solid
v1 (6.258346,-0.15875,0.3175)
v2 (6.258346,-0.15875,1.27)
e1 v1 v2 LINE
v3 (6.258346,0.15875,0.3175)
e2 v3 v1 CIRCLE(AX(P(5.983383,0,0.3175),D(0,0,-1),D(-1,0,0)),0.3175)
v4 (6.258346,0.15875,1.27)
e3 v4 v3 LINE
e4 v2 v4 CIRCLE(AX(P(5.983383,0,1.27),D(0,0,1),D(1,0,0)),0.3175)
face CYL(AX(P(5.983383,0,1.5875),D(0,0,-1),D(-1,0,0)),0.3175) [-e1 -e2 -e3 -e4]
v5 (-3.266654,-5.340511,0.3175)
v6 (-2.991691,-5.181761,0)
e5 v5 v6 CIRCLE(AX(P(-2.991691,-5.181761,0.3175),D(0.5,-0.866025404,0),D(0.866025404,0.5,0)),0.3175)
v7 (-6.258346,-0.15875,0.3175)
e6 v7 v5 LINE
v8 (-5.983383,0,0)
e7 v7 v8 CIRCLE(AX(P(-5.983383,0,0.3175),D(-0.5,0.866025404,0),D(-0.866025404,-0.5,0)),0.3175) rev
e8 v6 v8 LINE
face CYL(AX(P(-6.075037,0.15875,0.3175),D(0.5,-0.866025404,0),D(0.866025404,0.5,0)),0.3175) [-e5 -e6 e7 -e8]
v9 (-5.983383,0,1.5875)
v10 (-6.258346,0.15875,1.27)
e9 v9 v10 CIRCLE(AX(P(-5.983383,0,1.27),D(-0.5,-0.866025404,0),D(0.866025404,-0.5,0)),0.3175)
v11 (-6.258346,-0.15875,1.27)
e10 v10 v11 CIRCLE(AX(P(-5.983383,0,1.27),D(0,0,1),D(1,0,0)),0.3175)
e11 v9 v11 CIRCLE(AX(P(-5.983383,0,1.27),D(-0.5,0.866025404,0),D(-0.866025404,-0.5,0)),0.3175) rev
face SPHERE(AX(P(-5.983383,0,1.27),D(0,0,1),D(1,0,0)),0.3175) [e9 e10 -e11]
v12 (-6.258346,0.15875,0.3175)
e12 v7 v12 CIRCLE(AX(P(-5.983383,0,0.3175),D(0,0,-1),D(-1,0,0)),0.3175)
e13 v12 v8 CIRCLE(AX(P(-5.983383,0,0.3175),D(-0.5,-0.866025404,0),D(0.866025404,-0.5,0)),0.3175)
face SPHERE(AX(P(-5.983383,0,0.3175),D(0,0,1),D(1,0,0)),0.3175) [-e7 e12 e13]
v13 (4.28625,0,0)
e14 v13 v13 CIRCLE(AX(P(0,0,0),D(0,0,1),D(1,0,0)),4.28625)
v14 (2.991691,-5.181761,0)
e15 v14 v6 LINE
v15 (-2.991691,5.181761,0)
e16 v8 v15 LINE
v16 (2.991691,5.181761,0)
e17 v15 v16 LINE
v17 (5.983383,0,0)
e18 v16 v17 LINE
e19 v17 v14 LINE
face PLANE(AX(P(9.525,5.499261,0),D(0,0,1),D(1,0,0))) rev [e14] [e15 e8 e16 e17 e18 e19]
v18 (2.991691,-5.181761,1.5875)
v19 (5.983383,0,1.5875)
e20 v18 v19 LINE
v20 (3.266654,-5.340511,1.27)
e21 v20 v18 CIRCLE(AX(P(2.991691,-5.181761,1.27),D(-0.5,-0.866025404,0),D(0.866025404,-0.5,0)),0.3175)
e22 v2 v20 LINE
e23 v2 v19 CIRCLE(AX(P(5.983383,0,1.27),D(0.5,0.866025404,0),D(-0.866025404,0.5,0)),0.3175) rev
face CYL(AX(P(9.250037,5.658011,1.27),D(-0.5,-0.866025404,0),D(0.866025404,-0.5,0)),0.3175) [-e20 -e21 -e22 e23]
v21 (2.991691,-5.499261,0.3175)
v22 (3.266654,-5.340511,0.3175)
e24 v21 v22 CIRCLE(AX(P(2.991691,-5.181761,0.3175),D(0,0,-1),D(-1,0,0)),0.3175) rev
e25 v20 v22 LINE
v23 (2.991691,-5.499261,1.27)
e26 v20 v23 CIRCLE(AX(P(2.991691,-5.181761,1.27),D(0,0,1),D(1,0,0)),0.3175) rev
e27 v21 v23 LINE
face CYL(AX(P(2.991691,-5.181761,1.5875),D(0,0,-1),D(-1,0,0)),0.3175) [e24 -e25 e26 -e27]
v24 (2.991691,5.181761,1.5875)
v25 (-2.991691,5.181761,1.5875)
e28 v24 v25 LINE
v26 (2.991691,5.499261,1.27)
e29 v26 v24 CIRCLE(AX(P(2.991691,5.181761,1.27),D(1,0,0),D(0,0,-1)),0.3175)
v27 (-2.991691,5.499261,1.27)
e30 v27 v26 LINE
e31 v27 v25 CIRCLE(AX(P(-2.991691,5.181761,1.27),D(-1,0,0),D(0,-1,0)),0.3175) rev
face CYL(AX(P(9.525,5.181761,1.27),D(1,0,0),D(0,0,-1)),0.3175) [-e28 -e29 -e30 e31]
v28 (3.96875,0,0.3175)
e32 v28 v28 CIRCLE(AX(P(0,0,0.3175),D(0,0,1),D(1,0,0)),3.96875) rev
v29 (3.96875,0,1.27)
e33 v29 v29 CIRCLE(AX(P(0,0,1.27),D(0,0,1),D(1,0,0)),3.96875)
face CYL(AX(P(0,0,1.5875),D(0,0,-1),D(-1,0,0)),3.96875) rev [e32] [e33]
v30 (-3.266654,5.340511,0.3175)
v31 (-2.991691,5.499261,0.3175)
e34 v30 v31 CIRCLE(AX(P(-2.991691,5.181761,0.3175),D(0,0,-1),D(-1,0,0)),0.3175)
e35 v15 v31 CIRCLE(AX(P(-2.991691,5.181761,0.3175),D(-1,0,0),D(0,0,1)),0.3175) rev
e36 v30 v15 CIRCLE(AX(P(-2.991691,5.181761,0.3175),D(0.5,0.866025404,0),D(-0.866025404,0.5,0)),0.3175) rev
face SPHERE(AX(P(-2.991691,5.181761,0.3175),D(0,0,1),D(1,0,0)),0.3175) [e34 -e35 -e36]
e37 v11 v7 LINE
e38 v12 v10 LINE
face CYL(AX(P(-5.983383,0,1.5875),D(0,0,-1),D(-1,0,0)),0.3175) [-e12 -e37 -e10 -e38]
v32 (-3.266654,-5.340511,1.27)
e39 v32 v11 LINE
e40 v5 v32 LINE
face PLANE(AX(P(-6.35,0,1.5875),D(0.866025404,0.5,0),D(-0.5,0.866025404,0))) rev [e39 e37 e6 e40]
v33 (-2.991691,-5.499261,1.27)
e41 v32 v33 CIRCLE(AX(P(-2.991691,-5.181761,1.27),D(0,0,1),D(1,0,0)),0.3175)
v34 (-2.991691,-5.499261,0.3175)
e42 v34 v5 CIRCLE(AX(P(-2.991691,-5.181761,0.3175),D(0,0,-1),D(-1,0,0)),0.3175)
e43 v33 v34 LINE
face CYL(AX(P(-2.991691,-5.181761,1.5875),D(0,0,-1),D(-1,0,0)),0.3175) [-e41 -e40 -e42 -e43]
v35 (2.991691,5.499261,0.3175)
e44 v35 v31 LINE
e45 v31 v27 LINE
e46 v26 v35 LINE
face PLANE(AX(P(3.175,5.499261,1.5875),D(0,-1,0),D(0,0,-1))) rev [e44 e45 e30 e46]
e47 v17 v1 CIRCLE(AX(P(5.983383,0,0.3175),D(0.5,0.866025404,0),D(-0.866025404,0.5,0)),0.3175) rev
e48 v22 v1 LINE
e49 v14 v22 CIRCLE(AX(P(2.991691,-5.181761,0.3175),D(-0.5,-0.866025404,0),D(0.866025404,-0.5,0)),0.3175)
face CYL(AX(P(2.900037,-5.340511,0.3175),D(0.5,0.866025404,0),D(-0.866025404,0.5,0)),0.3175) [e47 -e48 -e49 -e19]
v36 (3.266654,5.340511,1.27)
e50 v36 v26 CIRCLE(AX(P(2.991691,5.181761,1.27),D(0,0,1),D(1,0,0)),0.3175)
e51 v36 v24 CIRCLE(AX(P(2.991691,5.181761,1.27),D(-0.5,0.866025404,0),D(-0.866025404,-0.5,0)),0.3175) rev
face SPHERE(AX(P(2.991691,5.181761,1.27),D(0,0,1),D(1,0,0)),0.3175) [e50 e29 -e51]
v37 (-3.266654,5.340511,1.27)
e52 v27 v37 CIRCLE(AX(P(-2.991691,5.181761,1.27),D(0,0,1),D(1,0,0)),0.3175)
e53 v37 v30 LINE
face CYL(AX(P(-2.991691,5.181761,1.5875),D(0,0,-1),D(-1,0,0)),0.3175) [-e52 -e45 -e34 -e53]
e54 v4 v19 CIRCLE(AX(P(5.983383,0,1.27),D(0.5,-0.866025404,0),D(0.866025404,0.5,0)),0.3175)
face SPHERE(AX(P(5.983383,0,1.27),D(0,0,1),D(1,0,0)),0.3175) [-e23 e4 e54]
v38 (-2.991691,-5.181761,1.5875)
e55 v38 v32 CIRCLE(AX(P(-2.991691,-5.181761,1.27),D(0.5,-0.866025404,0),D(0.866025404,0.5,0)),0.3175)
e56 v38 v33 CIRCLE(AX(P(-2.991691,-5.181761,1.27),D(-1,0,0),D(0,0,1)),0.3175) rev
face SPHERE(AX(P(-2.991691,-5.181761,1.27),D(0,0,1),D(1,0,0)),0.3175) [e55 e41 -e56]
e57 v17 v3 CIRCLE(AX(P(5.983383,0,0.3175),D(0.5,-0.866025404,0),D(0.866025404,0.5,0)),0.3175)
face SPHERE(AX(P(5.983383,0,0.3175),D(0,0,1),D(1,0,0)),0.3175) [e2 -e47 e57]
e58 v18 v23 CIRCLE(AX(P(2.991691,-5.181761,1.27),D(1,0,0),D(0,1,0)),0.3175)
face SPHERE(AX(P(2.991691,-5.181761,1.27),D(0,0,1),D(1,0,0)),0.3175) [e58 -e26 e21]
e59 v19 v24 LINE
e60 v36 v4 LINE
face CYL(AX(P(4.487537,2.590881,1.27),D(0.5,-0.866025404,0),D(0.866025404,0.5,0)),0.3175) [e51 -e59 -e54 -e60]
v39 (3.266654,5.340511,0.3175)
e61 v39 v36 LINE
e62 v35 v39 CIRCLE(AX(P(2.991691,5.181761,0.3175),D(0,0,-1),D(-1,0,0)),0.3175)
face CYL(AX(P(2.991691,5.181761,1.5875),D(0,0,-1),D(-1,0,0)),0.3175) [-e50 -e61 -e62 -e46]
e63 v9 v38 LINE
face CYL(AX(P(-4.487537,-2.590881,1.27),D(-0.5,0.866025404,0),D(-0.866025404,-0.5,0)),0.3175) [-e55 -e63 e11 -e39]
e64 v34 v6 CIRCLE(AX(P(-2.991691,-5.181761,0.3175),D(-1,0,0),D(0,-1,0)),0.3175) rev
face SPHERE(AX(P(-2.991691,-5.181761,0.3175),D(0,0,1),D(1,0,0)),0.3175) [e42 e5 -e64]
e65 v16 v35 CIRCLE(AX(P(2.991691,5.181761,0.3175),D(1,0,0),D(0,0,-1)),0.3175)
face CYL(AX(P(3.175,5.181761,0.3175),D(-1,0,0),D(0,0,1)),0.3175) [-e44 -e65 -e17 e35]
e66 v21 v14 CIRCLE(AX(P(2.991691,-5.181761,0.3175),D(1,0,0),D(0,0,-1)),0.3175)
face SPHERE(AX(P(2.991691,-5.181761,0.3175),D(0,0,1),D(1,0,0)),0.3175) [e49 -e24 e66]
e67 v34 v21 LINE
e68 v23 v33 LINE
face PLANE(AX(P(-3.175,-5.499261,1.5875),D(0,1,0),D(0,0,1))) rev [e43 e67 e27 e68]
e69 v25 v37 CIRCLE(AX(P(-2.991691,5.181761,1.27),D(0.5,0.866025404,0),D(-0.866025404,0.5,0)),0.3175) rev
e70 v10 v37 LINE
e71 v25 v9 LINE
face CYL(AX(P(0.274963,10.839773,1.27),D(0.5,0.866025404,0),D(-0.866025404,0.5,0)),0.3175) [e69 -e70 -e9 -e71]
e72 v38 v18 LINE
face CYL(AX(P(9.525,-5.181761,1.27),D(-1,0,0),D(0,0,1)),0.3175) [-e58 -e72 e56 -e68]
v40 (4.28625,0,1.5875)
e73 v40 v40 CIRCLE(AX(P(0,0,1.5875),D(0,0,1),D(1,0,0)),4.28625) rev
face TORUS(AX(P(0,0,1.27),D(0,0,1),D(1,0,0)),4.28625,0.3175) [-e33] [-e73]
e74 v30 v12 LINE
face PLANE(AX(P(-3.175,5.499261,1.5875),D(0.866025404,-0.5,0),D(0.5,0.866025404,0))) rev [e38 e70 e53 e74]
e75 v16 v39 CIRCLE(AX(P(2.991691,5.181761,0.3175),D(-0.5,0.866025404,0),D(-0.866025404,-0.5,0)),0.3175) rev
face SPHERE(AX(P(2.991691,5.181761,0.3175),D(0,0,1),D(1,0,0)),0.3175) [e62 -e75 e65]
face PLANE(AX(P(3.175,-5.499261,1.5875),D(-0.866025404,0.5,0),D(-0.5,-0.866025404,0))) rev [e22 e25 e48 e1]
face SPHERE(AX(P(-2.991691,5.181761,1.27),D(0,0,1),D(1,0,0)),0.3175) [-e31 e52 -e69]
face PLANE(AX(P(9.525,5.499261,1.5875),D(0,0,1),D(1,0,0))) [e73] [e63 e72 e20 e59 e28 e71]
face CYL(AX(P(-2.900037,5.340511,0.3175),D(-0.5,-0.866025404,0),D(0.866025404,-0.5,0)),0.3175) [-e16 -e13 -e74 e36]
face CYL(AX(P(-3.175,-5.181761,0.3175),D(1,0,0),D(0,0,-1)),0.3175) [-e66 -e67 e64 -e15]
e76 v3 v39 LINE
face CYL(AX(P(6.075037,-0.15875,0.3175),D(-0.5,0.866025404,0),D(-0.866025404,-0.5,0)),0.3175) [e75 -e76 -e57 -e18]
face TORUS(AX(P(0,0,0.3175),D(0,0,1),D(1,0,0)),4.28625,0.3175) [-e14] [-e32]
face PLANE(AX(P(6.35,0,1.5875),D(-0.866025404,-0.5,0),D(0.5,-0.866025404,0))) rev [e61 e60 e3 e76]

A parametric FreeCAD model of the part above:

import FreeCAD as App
import Part
import Sketcher
from FreeCAD import Vector
Q = App.Units.Quantity


def add_polygon(sketch, points):
    """Adds a closed chain of lines whose ends are joined by coincident constraints."""
    first, n = sketch.GeometryCount, len(points)
    for a, b in zip(points, points[1:] + points[:1]):
        sketch.addGeometry(Part.LineSegment(App.Vector(*a, 0), App.Vector(*b, 0)), False)
    for i in range(n):
        sketch.addConstraint(Sketcher.Constraint("Coincident", first + i, 2, first + (i + 1) % n, 1))

doc = App.newDocument("Part")
body = doc.addObject("PartDesign::Body", "Body")

# Sketch on XY plane
sketch1 = doc.addObject("Sketcher::SketchObject", "Sketch")
body.addObject(sketch1)
sketch1.AttachmentSupport = (doc.XY_Plane, [""])
sketch1.MapMode = "FlatFace"
add_polygon(sketch1, [(6.3, 0), (3.2, 5.5), (-3.2, 5.5), (-6.3, 0), (-3.2, -5.5), (3.2, -5.5)])  # lines 0-5
sketch1.addGeometry(Part.Circle(Vector(0, 0, 0), Vector(0, 0, 1), 4), False)  # 6
sketch1.addConstraint(Sketcher.Constraint("Horizontal", 1))
sketch1.addConstraint(Sketcher.Constraint("Horizontal", 4))
sketch1.addConstraint(Sketcher.Constraint("Coincident", 6, 3, -1, 1))
sketch1.addConstraint(Sketcher.Constraint("Symmetric", 0, 2, 3, 2, -1, 1))
sketch1.addConstraint(Sketcher.Constraint("Symmetric", 2, 2, 5, 2, -1, 1))
sketch1.addConstraint(Sketcher.Constraint("PointOnObject", 2, 2, -1))
sketch1.addConstraint(Sketcher.Constraint("Parallel", 2, 5))
sketch1.addConstraint(Sketcher.Constraint("Vertical", 1, 2, 3, 2))
sketch1.addConstraint(Sketcher.Constraint("Diameter", 6, Q("0.3125 in")))
sketch1.addConstraint(Sketcher.Constraint("Angle", 0, Q("120 deg")))
sketch1.addConstraint(Sketcher.Constraint("DistanceX", 1, 2, 1, 1, Q("0.25 in")))
sketch1.addConstraint(Sketcher.Constraint("Distance", 0, Q("0.25 in")))
pad1 = doc.addObject("PartDesign::Pad", "Pad")
body.addObject(pad1)
pad1.Profile = sketch1
pad1.Length = Q("0.0625 in")
doc.recompute()

fillet = doc.addObject("PartDesign::Fillet", "Fillet")
body.addObject(fillet)
fillet.Base = (pad1, ["Edge1"])
fillet.UseAllEdges = True
fillet.Radius = Q("0.0125 in")

doc.recompute()
